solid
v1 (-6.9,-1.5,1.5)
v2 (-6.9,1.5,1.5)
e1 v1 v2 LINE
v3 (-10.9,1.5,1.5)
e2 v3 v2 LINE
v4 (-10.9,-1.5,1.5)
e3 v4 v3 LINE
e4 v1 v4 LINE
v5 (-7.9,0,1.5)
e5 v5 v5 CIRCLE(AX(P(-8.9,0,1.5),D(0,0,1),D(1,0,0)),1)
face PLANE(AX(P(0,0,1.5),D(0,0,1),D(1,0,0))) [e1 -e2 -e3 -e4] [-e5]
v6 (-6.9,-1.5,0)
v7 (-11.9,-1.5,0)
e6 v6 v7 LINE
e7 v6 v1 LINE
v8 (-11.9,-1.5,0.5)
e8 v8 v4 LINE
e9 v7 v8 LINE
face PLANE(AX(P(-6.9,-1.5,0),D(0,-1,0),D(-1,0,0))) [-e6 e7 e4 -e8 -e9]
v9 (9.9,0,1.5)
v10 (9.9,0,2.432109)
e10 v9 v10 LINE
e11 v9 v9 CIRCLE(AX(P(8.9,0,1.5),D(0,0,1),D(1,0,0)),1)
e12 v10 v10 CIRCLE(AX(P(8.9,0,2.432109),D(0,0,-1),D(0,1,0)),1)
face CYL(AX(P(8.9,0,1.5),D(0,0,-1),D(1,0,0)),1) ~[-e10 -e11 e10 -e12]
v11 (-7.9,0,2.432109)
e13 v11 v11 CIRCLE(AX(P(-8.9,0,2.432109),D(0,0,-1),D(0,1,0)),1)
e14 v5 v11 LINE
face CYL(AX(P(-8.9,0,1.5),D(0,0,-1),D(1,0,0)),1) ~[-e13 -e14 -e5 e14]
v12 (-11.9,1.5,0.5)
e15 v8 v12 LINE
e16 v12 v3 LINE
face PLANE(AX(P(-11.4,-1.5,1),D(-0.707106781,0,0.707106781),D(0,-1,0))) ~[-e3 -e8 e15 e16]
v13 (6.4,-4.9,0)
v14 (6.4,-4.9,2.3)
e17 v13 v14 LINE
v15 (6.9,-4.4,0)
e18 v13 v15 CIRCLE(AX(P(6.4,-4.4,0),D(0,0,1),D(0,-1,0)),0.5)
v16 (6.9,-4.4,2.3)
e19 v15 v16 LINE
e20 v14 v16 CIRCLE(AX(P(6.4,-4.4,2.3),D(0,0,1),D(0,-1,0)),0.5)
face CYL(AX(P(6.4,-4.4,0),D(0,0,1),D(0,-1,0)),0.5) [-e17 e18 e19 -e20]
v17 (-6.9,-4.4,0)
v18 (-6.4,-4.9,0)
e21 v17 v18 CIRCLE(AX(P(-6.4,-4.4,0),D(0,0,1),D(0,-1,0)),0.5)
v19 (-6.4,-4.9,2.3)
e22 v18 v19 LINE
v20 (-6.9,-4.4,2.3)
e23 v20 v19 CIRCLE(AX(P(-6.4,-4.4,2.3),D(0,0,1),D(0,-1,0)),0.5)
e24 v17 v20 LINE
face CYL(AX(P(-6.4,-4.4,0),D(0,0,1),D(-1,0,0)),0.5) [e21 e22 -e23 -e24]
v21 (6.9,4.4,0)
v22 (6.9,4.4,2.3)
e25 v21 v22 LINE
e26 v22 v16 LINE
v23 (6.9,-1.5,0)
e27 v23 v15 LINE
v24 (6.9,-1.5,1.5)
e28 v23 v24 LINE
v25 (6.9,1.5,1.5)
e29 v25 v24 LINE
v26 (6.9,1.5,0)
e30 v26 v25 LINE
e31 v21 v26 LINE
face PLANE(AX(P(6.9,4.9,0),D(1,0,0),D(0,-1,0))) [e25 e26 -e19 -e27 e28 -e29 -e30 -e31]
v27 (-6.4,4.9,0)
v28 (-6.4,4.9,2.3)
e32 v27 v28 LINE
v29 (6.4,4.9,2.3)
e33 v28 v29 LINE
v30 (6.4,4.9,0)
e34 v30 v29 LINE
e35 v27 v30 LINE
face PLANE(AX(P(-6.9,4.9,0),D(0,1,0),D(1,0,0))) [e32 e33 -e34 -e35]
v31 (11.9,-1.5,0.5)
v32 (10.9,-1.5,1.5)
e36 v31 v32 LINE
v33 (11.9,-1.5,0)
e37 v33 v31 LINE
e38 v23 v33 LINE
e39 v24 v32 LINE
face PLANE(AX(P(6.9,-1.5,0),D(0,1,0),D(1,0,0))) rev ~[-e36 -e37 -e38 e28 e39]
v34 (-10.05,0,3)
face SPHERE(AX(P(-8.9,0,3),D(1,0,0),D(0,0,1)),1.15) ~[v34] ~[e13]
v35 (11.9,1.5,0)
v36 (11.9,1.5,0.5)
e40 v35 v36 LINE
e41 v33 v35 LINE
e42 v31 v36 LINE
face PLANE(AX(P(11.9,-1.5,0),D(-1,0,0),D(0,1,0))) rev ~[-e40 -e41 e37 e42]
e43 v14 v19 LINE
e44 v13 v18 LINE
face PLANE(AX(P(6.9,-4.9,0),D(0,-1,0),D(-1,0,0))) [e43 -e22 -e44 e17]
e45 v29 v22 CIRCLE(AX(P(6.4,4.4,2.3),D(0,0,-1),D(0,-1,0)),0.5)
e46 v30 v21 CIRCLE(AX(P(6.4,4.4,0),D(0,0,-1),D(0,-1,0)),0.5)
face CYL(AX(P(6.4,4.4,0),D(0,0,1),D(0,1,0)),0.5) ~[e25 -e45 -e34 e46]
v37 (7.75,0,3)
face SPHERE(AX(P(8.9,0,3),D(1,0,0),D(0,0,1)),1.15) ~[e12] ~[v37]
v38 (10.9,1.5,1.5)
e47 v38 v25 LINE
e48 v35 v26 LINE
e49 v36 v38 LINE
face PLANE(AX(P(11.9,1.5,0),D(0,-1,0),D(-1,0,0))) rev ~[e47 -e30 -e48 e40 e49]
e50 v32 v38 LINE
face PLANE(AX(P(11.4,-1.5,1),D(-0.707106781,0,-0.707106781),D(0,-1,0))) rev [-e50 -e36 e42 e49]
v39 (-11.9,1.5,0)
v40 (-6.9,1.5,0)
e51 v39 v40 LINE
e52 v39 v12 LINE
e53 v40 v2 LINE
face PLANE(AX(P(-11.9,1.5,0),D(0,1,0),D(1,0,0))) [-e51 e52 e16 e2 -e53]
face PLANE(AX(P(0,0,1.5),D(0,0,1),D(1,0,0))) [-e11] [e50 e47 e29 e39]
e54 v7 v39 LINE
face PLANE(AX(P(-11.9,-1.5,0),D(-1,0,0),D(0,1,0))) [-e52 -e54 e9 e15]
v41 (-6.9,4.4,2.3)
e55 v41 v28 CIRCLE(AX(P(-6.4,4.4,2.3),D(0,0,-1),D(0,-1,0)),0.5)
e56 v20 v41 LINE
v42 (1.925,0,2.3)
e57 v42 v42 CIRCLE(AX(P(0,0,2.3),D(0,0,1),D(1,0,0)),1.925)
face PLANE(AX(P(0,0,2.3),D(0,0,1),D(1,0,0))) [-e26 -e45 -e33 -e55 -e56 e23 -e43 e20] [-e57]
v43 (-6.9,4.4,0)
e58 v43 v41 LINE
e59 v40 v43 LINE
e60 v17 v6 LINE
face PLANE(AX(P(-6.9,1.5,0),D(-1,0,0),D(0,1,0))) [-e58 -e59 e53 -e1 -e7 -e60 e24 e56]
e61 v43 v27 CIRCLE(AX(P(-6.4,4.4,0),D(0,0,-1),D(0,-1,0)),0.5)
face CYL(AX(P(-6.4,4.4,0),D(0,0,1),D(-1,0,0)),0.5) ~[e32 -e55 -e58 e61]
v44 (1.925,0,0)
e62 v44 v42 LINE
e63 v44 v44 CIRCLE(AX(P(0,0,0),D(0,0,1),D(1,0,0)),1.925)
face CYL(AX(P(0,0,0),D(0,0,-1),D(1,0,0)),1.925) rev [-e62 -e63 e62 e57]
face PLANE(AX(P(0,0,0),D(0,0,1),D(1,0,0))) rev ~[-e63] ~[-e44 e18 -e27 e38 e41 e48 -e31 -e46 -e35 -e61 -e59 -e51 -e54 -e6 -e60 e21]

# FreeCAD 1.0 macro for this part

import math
import FreeCAD as App
import Part
import Sketcher

V = App.Vector
Q = App.Units.Quantity


def edges_at(feature, points):
    """Names of the edges that pass closest to the given points."""
    edges = feature.Shape.Edges
    near = lambda p: min(range(len(edges)), key=lambda i: edges[i].distToShape(Part.Vertex(*p))[0])
    return sorted({f"Edge{near(p) + 1}" for p in points})

doc = App.newDocument("Part")
body = doc.addObject("PartDesign::Body", "Body")

# Sketch on XY plane
sketch1 = body.newObject("Sketcher::SketchObject", "Sketch")
sketch1.AttachmentSupport = (doc.getObject("XY_Plane"), [""])
sketch1.MapMode = "FlatFace"
sketch1.addGeometry([
    Part.LineSegment(V(6.9, 4.9, 0), V(-6.9, 4.9, 0)),  # 0
    Part.LineSegment(V(-6.9, 4.9, 0), V(-6.9, -4.9, 0)),  # 1
    Part.LineSegment(V(-6.9, -4.9, 0), V(6.9, -4.9, 0)),  # 2
    Part.LineSegment(V(6.9, -4.9, 0), V(6.9, 4.9, 0)),  # 3
    Part.Circle(V(0, 0, 0), V(0, 0, 1), 1.9),  # 4
], False)
sketch1.addConstraint([
    Sketcher.Constraint("Coincident", 0, 2, 1, 1),
    Sketcher.Constraint("Coincident", 1, 2, 2, 1),
    Sketcher.Constraint("Coincident", 2, 2, 3, 1),
    Sketcher.Constraint("Coincident", 3, 2, 0, 1),
    Sketcher.Constraint("Horizontal", 0),
    Sketcher.Constraint("Vertical", 1),
    Sketcher.Constraint("Horizontal", 2),
    Sketcher.Constraint("Vertical", 3),
    Sketcher.Constraint("Coincident", 4, 3, -1, 1),
    Sketcher.Constraint("Symmetric", 0, 2, 2, 2, -1, 1),
    Sketcher.Constraint("Diameter", 4, Q("3.85 mm")),
    Sketcher.Constraint("DistanceX", 0, 2, 0, 1, Q("13.8 mm")),
    Sketcher.Constraint("DistanceY", 1, 2, 1, 1, Q("9.8 mm")),
])
pad1 = body.newObject("PartDesign::Pad", "Pad")
pad1.Profile = sketch1
pad1.Length = 2.3

# Sketch on XY plane
sketch2 = body.newObject("Sketcher::SketchObject", "Sketch001")
sketch2.AttachmentSupport = (doc.getObject("XY_Plane"), [""])
sketch2.MapMode = "FlatFace"
sketch2.addGeometry([
    Part.LineSegment(V(-6.9, -1.5, 0), V(-6.9, 1.5, 0)),  # 0
    Part.LineSegment(V(-6.9, 1.5, 0), V(-11.9, 1.5, 0)),  # 1
    Part.LineSegment(V(-11.9, 1.5, 0), V(-11.9, -1.5, 0)),  # 2
    Part.LineSegment(V(-11.9, -1.5, 0), V(-6.9, -1.5, 0)),  # 3
    Part.LineSegment(V(11.9, 1.5, 0), V(6.9, 1.5, 0)),  # 4
    Part.LineSegment(V(6.9, 1.5, 0), V(6.9, -1.5, 0)),  # 5
    Part.LineSegment(V(6.9, -1.5, 0), V(11.9, -1.5, 0)),  # 6
    Part.LineSegment(V(11.9, -1.5, 0), V(11.9, 1.5, 0)),  # 7
], False)
sketch2.addConstraint([
    Sketcher.Constraint("Coincident", 0, 2, 1, 1),
    Sketcher.Constraint("Coincident", 1, 2, 2, 1),
    Sketcher.Constraint("Coincident", 2, 2, 3, 1),
    Sketcher.Constraint("Coincident", 3, 2, 0, 1),
    Sketcher.Constraint("Coincident", 4, 2, 5, 1),
    Sketcher.Constraint("Coincident", 5, 2, 6, 1),
    Sketcher.Constraint("Coincident", 6, 2, 7, 1),
    Sketcher.Constraint("Coincident", 7, 2, 4, 1),
    Sketcher.Constraint("Vertical", 0),
    Sketcher.Constraint("Horizontal", 1),
    Sketcher.Constraint("Vertical", 2),
    Sketcher.Constraint("Horizontal", 3),
    Sketcher.Constraint("Horizontal", 4),
    Sketcher.Constraint("Vertical", 5),
    Sketcher.Constraint("Horizontal", 6),
    Sketcher.Constraint("Vertical", 7),
    Sketcher.Constraint("Symmetric", 3, 2, 4, 2, -1, 1),
    Sketcher.Constraint("Symmetric", 1, 2, 6, 2, -1, 1),
    Sketcher.Constraint("Horizontal", 1, 2, 4, 2),
    Sketcher.Constraint("DistanceX", 1, 2, 1, 1, Q("5 mm")),
    Sketcher.Constraint("DistanceY", 0, 1, 0, 2, Q("3 mm")),
    Sketcher.Constraint("DistanceX", 0, 2, -1, 1, Q("6.9 mm")),
])
pad2 = body.newObject("PartDesign::Pad", "Pad001")
pad2.Profile = sketch2
pad2.Length = 1.5
doc.recompute()

chamfer = body.newObject("PartDesign::Chamfer", "Chamfer")
chamfer.Base = (pad2, edges_at(pad2, [(-11.9, 0, 1.5), (11.9, 0, 1.5)]))
chamfer.Size = 1

# Sketch on XY plane
sketch3 = body.newObject("Sketcher::SketchObject", "Sketch002")
sketch3.AttachmentSupport = (doc.getObject("XY_Plane"), [""])
sketch3.MapMode = "FlatFace"
sketch3.AttachmentOffset = App.Placement(V(0, 0, 1.5), App.Rotation())
sketch3.addGeometry([
    Part.Circle(V(8.9, 0, 0), V(0, 0, 1), 1),
    Part.Circle(V(-8.9, 0, 0), V(0, 0, 1), 1),
], False)
sketch3.addConstraint([
    Sketcher.Constraint("Equal", 0, 1),
    Sketcher.Constraint("Symmetric", 0, 3, 1, 3, -1, 1),
    Sketcher.Constraint("PointOnObject", 0, 3, -1),
    Sketcher.Constraint("Diameter", 0, Q("2 mm")),
    Sketcher.Constraint("DistanceX", -1, 1, 0, 3, Q("8.9 mm")),
])
pad3 = body.newObject("PartDesign::Pad", "Pad002")
pad3.Profile = sketch3
pad3.Length = 1.5

# Sketch on XZ plane
sketch4 = body.newObject("Sketcher::SketchObject", "Sketch003")
sketch4.AttachmentSupport = (doc.getObject("XZ_Plane"), [""])
sketch4.MapMode = "FlatFace"
sketch4.addGeometry([
    Part.LineSegment(V(-7.8, 3, 0), V(-10.1, 3, 0)),
    Part.ArcOfCircle(Part.Circle(V(-8.9, 3, 0), V(0, 0, 1), 1.1), math.radians(0), math.radians(180)),
    Part.LineSegment(V(10.1, 3, 0), V(7.8, 3, 0)),
    Part.ArcOfCircle(Part.Circle(V(8.9, 3, 0), V(0, 0, 1), 1.1), math.radians(0), math.radians(180)),
], False)
sketch4.addGeometry(Part.LineSegment(V(10.1, 3, 0), V(-10.1, 3, 0)), True)  # axis
sketch4.addConstraint([
    Sketcher.Constraint("Coincident", 0, 1, 1, 1),
    Sketcher.Constraint("Coincident", 1, 2, 0, 2),
    Sketcher.Constraint("Coincident", 2, 1, 3, 1),
    Sketcher.Constraint("Coincident", 3, 2, 2, 2),
    Sketcher.Constraint("Horizontal", 0),
    Sketcher.Constraint("Horizontal", 2),
    Sketcher.Constraint("Horizontal", 4),
    Sketcher.Constraint("Coincident", 4, 1, 2, 1),
    Sketcher.Constraint("Coincident", 4, 2, 1, 2),
    Sketcher.Constraint("Equal", 1, 3),
    Sketcher.Constraint("Symmetric", 1, 3, 3, 3, -2),
    Sketcher.Constraint("Horizontal", 3, 3, 0, 1),
    Sketcher.Constraint("Radius", 1, Q("1.15 mm")),
    Sketcher.Constraint("DistanceX", 4, 2, 4, 1, Q("20.1 mm")),
    Sketcher.Constraint("DistanceY", -1, 1, 1, 3, Q("3 mm")),
])
revolution = body.newObject("PartDesign::Revolution", "Revolution")
revolution.Profile = sketch4
revolution.ReferenceAxis = (sketch4, ["Axis0"])
revolution.Angle = 360
doc.recompute()

fillet = body.newObject("PartDesign::Fillet", "Fillet")
fillet.Base = (revolution, edges_at(revolution, [
    (-6.9, -4.9, 1.15),
    (-6.9, 4.9, 1.15),
    (6.9, 4.9, 1.15),
    (6.9, -4.9, 1.15),
]))
fillet.Radius = 0.5

doc.recompute()
